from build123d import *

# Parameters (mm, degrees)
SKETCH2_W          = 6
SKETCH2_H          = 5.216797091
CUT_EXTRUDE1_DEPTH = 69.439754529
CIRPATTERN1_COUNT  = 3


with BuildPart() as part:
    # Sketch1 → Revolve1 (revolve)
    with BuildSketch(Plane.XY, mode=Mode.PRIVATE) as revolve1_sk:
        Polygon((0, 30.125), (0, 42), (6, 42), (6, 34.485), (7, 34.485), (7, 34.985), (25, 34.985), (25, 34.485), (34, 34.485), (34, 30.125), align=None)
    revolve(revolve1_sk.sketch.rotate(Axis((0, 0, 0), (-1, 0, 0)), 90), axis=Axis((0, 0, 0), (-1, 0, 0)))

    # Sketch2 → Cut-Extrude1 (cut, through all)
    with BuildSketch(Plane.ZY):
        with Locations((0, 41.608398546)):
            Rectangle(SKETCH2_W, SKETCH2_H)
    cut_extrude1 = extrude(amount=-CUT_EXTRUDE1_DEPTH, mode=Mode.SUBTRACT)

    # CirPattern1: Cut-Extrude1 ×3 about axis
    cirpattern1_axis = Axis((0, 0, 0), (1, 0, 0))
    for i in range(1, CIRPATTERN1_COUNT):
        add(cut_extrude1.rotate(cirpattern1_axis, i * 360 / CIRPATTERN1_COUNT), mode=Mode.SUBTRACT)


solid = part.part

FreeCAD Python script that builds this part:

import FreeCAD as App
import Part
import Sketcher

V = App.Vector


def add_polygon(sketch, points):
    """Adds a closed chain of lines whose ends are joined by coincident constraints."""
    first, n = sketch.GeometryCount, len(points)
    for a, b in zip(points, points[1:] + points[:1]):
        sketch.addGeometry(Part.LineSegment(App.Vector(*a, 0), App.Vector(*b, 0)), False)
    for i in range(n):
        sketch.addConstraint(Sketcher.Constraint("Coincident", first + i, 2, first + (i + 1) % n, 1))

doc = App.newDocument("Part")
body = doc.addObject("PartDesign::Body", "Body")

# Sketch on XY plane
sketch1 = doc.addObject("Sketcher::SketchObject", "Sketch")
body.addObject(sketch1)
sketch1.AttachmentSupport = (doc.XY_Plane, [""])
sketch1.MapMode = "FlatFace"
add_polygon(sketch1, [(0, 42), (0, 30.125), (34, 30.125), (34, 34.485), (25, 34.485), (25, 34.985), (7, 34.985), (7, 34.485), (6, 34.485), (6, 42)])  # lines 0-9
sketch1.addConstraint([
    Sketcher.Constraint("Vertical", 0),
    Sketcher.Constraint("Horizontal", 1),
    Sketcher.Constraint("Vertical", 2),
    Sketcher.Constraint("Horizontal", 3),
    Sketcher.Constraint("Vertical", 4),
    Sketcher.Constraint("Horizontal", 5),
    Sketcher.Constraint("Vertical", 6),
    Sketcher.Constraint("Horizontal", 7),
    Sketcher.Constraint("Vertical", 8),
    Sketcher.Constraint("Horizontal", 9),
    Sketcher.Constraint("PointOnObject", 0, 2, -2),
    Sketcher.Constraint("Horizontal", 3, 2, 6, 2),
    Sketcher.Constraint("DistanceX", 1, 1, 1, 2, 34.0),
    Sketcher.Constraint("DistanceX", 3, 2, 3, 1, 9.0),
    Sketcher.Constraint("DistanceX", 5, 2, 5, 1, 18.0),
    Sketcher.Constraint("DistanceX", 7, 2, 7, 1, 1.0),
    Sketcher.Constraint("DistanceY", 4, 1, 4, 2, 0.5),
    Sketcher.Constraint("DistanceY", -1, 1, 8, 2, 42.0),
    Sketcher.Constraint("DistanceY", 2, 1, 2, 2, 4.36),
    Sketcher.Constraint("DistanceY", 0, 2, 0, 1, 11.875),
])
revolution = doc.addObject("PartDesign::Revolution", "Revolution")
body.addObject(revolution)
revolution.Profile = sketch1
revolution.ReferenceAxis = (sketch1, ["H_Axis"])
revolution.Angle = 360

# Sketch on YZ plane
sketch2 = doc.addObject("Sketcher::SketchObject", "Sketch001")
body.addObject(sketch2)
sketch2.AttachmentSupport = (doc.YZ_Plane, [""])
sketch2.MapMode = "FlatFace"
add_polygon(sketch2, [(44.216797, -3), (39, -3), (39, 3), (44.216797, 3)])  # lines 0-3
sketch2.addConstraint([
    Sketcher.Constraint("Horizontal", 0),
    Sketcher.Constraint("Vertical", 1),
    Sketcher.Constraint("Horizontal", 2),
    Sketcher.Constraint("Vertical", 3),
    Sketcher.Constraint("DistanceY", 1, 1, 1, 2, 6.0),
    Sketcher.Constraint("DistanceX", -1, 1, 0, 2, 39.0),
    Sketcher.Constraint("DistanceY", 0, 2, -1, 1, 3.0),
    Sketcher.Constraint("DistanceX", 0, 2, 0, 1, 5.216797),
])
pocket1 = doc.addObject("PartDesign::Pocket", "Pocket")
body.addObject(pocket1)
pocket1.Profile = sketch2
pocket1.Type = "ThroughAll"
pocket1.Reversed = True
doc.recompute()

polarpattern = doc.addObject("PartDesign::PolarPattern", "PolarPattern")
body.addObject(polarpattern)
polarpattern.Originals = [pocket1]
polarpattern.Axis = (doc.X_Axis, [""])
polarpattern.Angle = 360
polarpattern.Occurrences = 3
body.Tip = polarpattern

doc.recompute()
